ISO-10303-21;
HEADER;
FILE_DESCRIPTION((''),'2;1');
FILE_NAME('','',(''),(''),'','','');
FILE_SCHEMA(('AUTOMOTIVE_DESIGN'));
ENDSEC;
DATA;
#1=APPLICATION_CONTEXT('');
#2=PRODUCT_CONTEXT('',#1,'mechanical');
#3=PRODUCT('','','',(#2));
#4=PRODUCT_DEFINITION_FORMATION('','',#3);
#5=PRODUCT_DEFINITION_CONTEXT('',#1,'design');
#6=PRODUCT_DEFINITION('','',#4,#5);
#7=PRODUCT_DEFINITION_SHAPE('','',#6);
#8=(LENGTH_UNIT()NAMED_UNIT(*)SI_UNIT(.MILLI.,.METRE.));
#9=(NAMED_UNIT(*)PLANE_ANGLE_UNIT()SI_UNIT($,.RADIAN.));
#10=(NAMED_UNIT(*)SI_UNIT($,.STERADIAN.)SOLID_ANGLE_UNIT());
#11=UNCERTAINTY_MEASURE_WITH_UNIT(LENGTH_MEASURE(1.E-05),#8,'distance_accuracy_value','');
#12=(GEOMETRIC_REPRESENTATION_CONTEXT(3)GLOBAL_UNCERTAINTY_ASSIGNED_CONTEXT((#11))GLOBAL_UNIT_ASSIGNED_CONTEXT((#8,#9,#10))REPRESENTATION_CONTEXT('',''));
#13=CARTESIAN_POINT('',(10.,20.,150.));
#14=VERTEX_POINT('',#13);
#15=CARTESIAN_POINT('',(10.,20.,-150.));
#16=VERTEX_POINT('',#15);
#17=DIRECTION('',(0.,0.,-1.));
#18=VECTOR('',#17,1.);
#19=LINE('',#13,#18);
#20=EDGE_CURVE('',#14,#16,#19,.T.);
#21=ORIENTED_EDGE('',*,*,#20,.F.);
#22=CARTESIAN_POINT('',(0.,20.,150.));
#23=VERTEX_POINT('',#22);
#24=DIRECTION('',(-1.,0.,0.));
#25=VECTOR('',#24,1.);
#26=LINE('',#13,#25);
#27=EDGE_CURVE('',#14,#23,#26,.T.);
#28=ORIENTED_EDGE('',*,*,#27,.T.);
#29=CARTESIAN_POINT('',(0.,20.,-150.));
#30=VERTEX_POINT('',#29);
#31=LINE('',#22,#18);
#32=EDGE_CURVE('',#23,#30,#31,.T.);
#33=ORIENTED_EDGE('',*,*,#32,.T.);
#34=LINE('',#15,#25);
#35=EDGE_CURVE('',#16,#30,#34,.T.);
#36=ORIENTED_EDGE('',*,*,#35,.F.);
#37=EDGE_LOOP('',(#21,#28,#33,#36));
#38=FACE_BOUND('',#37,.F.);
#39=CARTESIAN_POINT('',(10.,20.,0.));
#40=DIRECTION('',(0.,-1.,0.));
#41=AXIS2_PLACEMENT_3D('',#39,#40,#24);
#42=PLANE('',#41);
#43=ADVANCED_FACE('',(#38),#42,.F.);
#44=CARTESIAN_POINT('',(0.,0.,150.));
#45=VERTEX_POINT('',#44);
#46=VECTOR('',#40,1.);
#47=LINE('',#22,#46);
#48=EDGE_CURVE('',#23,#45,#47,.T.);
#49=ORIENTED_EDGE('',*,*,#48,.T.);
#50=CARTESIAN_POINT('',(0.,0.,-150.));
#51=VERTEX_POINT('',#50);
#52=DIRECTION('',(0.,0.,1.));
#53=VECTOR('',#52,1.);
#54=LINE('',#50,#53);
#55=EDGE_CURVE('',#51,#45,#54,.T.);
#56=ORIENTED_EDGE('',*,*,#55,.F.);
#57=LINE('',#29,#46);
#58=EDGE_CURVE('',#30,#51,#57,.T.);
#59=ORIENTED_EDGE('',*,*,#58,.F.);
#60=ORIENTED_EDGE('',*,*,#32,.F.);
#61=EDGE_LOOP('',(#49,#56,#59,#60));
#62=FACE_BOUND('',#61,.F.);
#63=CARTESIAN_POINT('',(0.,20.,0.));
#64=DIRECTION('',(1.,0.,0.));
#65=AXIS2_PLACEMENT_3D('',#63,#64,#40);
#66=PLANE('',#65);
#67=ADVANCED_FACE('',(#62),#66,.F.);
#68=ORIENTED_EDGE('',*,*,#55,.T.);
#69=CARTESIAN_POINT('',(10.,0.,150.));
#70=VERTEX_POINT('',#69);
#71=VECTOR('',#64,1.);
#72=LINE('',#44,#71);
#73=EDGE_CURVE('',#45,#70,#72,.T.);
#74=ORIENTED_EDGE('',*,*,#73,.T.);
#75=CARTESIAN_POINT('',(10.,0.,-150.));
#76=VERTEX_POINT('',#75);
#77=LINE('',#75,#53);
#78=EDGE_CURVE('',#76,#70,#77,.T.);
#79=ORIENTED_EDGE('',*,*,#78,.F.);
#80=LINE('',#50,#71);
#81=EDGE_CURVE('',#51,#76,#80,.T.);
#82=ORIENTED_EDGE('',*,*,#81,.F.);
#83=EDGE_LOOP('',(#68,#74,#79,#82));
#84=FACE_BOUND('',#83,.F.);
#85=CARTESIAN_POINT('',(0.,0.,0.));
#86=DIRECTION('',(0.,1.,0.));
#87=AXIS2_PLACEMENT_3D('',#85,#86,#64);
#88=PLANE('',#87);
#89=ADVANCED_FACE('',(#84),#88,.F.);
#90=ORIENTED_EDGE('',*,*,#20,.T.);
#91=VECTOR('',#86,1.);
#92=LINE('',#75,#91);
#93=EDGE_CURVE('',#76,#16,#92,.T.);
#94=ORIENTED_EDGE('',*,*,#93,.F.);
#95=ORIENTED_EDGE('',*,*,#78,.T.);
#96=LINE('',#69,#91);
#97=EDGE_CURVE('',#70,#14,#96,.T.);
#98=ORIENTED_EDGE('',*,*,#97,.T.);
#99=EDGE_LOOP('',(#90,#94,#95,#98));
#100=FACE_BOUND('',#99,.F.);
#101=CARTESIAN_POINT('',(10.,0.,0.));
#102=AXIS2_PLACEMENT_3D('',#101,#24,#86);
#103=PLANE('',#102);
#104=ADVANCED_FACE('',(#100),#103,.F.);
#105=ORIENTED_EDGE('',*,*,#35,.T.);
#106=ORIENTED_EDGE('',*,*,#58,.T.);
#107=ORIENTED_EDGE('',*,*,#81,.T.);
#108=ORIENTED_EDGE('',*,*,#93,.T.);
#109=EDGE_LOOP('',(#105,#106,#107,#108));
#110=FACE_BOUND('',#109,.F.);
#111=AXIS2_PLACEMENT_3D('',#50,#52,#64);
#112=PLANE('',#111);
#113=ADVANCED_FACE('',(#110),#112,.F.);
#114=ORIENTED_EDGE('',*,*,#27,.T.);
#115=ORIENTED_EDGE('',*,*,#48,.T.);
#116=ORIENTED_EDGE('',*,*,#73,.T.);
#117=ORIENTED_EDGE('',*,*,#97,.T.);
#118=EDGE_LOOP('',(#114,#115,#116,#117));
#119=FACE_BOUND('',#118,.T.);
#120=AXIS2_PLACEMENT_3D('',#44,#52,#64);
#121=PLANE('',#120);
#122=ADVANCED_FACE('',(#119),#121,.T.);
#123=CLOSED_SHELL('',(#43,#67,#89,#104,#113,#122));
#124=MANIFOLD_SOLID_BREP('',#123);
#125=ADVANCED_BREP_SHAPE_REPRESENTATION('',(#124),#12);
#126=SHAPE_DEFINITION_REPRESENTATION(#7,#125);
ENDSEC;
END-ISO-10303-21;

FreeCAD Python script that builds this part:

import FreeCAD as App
import Part
import Sketcher

V = App.Vector

doc = App.newDocument("Part")
body = doc.addObject("PartDesign::Body", "Body")

sketch1 = body.newObject("Sketcher::SketchObject", "Sketch")
sketch1.AttachmentSupport = (doc.getObject("XY_Plane"), [""])
sketch1.MapMode = "FlatFace"
sketch1.addGeometry([
    Part.LineSegment(V(0, 20, 0), V(0, 0, 0)),
    Part.LineSegment(V(0, 0, 0), V(10, 0, 0)),
    Part.LineSegment(V(10, 0, 0), V(10, 20, 0)),
    Part.LineSegment(V(10, 20, 0), V(0, 20, 0)),
], False)
sketch1.addConstraint([
    Sketcher.Constraint("Coincident", 0, 2, 1, 1),
    Sketcher.Constraint("Coincident", 1, 2, 2, 1),
    Sketcher.Constraint("Coincident", 2, 2, 3, 1),
    Sketcher.Constraint("Coincident", 3, 2, 0, 1),
    Sketcher.Constraint("Vertical", 0),
    Sketcher.Constraint("Horizontal", 1),
    Sketcher.Constraint("Vertical", 2),
    Sketcher.Constraint("Horizontal", 3),
    Sketcher.Constraint("Coincident", 0, 2, -1, 1),
    Sketcher.Constraint("DistanceX", 1, 1, 1, 2, 10.0),
    Sketcher.Constraint("DistanceY", 0, 2, 0, 1, 20.0),
])
pad1 = body.newObject("PartDesign::Pad", "Pad")
pad1.Profile = sketch1
pad1.Length = 300
pad1.Midplane = True

doc.recompute()
